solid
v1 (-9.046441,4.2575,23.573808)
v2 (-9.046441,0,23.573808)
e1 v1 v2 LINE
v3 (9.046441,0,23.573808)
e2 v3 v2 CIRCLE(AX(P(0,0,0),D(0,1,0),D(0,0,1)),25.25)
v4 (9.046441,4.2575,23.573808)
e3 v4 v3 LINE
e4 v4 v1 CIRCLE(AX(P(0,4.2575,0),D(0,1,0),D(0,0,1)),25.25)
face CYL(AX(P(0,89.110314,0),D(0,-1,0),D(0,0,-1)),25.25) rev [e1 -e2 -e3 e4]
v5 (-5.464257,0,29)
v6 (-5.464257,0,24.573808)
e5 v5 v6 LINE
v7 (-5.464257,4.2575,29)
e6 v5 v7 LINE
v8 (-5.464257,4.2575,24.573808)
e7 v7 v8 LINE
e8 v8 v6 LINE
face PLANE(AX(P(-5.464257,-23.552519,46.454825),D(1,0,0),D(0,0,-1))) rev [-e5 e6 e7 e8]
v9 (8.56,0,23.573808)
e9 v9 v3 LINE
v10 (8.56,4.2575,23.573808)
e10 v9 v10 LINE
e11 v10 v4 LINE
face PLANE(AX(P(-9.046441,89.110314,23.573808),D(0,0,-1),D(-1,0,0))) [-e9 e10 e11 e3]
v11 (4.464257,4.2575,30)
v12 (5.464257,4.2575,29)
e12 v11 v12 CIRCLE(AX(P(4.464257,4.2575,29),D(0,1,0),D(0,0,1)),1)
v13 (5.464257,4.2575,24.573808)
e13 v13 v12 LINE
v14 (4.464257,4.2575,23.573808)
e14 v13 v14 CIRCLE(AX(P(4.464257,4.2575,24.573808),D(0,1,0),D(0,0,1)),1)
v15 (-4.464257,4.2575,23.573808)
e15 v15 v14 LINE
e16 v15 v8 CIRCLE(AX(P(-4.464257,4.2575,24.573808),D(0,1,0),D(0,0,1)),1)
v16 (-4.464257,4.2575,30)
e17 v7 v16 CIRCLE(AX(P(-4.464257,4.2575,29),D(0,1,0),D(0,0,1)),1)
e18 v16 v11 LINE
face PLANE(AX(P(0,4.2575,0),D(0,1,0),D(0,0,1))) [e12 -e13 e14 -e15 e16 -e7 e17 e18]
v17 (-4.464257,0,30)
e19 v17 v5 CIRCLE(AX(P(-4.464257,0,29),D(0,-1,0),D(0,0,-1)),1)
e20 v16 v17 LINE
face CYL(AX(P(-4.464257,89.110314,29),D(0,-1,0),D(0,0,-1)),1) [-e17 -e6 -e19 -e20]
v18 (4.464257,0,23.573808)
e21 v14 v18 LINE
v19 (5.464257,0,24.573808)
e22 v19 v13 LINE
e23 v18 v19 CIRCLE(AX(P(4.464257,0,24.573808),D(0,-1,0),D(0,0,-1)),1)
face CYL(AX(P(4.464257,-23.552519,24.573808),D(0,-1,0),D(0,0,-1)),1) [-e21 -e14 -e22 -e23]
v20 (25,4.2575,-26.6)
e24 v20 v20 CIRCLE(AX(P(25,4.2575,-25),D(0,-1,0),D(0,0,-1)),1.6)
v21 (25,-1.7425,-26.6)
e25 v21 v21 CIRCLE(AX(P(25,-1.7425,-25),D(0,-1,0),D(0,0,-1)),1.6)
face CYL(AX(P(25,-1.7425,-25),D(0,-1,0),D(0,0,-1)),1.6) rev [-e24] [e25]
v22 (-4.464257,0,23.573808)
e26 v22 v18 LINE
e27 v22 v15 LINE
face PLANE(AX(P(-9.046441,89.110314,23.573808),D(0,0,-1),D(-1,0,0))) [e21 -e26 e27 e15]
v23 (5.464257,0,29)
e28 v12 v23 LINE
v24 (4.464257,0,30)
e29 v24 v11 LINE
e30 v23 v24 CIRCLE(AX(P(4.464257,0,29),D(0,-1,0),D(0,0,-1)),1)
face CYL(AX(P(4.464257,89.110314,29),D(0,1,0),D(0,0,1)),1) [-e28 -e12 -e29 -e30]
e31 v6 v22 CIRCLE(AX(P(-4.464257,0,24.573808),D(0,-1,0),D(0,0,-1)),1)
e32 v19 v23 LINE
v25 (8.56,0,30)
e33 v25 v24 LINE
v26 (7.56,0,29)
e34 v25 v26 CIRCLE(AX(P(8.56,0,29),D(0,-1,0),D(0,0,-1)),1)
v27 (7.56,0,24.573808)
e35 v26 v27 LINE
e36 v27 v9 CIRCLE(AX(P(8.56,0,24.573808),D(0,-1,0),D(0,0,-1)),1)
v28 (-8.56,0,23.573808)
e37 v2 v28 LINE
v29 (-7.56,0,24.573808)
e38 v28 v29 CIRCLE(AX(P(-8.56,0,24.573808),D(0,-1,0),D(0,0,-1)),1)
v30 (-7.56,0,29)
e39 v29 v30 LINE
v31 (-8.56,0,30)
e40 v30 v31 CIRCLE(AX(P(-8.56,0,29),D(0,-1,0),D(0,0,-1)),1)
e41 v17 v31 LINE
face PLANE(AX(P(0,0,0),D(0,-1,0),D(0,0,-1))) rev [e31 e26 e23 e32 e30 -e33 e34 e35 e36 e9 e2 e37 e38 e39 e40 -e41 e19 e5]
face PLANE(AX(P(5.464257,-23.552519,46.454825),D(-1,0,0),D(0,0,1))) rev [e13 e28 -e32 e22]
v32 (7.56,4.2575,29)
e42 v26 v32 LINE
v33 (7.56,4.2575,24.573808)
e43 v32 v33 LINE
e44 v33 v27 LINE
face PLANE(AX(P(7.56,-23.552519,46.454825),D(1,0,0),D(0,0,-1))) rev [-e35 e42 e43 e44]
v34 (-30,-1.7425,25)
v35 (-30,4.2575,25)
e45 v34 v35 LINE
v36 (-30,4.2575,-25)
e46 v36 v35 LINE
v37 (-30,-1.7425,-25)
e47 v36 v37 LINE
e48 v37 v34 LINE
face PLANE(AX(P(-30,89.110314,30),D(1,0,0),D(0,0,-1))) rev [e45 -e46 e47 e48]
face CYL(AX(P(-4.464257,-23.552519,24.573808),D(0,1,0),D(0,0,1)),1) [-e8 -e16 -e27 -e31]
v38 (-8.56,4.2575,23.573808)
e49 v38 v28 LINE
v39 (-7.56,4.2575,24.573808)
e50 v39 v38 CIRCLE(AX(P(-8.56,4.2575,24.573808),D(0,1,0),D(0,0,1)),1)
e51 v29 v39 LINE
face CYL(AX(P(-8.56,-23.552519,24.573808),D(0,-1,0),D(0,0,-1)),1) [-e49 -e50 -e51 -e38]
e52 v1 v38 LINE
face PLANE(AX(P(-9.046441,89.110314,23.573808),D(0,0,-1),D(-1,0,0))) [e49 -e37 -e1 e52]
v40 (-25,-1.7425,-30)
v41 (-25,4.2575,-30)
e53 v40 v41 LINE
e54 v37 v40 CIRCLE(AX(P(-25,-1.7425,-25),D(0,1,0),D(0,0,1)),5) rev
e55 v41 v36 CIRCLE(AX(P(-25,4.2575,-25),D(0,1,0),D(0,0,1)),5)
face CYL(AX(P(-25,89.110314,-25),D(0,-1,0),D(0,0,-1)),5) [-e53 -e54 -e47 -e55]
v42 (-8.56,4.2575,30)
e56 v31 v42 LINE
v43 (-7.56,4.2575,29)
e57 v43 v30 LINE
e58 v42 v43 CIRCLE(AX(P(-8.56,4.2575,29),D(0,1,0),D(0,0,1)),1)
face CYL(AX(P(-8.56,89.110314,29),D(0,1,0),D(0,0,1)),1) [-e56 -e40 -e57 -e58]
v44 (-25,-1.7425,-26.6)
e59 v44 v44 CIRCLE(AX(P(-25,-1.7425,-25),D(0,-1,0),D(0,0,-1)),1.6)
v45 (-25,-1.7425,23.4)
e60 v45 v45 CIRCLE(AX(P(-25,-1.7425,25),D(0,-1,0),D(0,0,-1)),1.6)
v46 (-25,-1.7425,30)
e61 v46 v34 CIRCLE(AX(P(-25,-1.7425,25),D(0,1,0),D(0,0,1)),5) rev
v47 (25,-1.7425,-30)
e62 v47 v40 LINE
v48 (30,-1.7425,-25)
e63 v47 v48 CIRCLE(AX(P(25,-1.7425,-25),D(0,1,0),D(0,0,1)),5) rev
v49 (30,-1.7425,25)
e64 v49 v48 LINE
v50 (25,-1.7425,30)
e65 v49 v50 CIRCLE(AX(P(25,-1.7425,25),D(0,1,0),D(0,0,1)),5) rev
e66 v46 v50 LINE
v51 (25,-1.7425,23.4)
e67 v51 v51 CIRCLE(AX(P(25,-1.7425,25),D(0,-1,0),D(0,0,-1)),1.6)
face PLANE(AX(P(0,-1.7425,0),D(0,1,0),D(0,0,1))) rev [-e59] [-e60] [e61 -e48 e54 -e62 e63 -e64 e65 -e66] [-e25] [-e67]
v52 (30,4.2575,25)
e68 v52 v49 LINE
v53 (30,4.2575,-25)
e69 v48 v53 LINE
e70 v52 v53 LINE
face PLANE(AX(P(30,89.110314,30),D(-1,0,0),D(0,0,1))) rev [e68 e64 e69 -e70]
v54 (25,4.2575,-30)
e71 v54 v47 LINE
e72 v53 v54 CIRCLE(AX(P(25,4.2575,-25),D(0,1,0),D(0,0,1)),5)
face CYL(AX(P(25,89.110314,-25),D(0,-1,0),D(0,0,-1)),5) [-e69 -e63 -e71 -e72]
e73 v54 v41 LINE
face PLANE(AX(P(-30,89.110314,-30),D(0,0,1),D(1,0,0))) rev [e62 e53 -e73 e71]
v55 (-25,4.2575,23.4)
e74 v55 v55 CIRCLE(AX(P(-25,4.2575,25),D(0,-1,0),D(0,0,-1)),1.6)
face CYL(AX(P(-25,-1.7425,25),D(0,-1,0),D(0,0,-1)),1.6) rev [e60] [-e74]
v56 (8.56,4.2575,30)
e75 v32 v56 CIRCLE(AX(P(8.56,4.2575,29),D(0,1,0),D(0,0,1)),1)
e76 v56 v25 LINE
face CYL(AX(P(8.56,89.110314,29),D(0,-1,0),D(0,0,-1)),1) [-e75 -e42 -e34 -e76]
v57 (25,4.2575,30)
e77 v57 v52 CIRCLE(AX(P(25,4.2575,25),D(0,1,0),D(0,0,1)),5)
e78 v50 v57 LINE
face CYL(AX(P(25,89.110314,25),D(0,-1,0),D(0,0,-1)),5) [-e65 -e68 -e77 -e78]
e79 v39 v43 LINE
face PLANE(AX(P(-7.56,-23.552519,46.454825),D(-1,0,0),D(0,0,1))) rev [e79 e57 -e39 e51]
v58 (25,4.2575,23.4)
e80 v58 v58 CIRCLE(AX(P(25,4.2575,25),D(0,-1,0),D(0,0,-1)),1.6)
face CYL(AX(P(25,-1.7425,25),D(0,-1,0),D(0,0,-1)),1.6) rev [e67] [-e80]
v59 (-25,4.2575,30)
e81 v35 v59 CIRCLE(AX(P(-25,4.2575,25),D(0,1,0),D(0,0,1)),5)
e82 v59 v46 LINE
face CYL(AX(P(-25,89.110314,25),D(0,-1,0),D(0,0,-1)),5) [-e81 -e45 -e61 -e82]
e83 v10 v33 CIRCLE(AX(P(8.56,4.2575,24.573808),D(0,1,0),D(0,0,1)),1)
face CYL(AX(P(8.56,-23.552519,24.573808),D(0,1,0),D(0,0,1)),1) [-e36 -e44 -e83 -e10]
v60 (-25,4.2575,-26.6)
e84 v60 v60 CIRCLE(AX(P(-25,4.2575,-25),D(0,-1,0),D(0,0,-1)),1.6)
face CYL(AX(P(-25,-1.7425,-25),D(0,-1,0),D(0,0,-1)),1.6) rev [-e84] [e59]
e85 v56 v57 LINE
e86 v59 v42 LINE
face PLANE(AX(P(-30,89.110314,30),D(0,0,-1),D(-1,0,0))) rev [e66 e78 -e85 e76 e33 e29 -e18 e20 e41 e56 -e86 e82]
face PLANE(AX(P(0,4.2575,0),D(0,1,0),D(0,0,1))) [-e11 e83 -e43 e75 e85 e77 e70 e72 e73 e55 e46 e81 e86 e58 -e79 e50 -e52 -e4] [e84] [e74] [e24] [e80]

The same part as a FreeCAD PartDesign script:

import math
import FreeCAD as App
import Part
import Sketcher

V = App.Vector
Q = App.Units.Quantity


def edges_at(feature, points):
    """Names of the edges that pass closest to the given points."""
    edges = feature.Shape.Edges
    near = lambda p: min(range(len(edges)), key=lambda i: edges[i].distToShape(Part.Vertex(*p))[0])
    return sorted({f"Edge{near(p) + 1}" for p in points})


def add_polygon(sketch, points):
    """Adds a closed chain of lines whose ends are joined by coincident constraints."""
    first, n = sketch.GeometryCount, len(points)
    for a, b in zip(points, points[1:] + points[:1]):
        sketch.addGeometry(Part.LineSegment(App.Vector(*a, 0), App.Vector(*b, 0)), False)
    for i in range(n):
        sketch.addConstraint(Sketcher.Constraint("Coincident", first + i, 2, first + (i + 1) % n, 1))

doc = App.newDocument("Part")
body = doc.addObject("PartDesign::Body", "Body")

# Sketch on XZ plane
sketch1 = body.newObject("Sketcher::SketchObject", "Sketch")
sketch1.AttachmentSupport = (doc.getObject("XZ_Plane"), [""])
sketch1.MapMode = "FlatFace"
add_polygon(sketch1, [(-30, -30), (-30, 30), (30, 30), (30, -30)])  # lines 0-3
sketch1.addGeometry(Part.LineSegment(V(9, 24, 0), V(-9, 24, 0)), False)  # 4
sketch1.addGeometry(Part.ArcOfCircle(Part.Circle(V(0, 0, 0), V(0, 0, 1), 25), math.radians(111), math.radians(182)), False)  # 5
sketch1.addGeometry(Part.ArcOfCircle(Part.Circle(V(0, 0, 0), V(0, 0, 1), 25), math.radians(-178), math.radians(69)), False)  # 6
sketch1.addConstraint([
    Sketcher.Constraint("Coincident", 4, 2, 5, 1),
    Sketcher.Constraint("Tangent", 5, 2, 6, 1),
    Sketcher.Constraint("Coincident", 6, 2, 4, 1),
    Sketcher.Constraint("Vertical", 0),
    Sketcher.Constraint("Horizontal", 1),
    Sketcher.Constraint("Vertical", 2),
    Sketcher.Constraint("Horizontal", 3),
    Sketcher.Constraint("Horizontal", 4),
    Sketcher.Constraint("Coincident", 5, 3, -1, 1),
    Sketcher.Constraint("Equal", 5, 6),
    Sketcher.Constraint("Symmetric", 0, 2, 2, 2, -1, 1),
    Sketcher.Constraint("Equal", 3, 0),
    Sketcher.Constraint("DistanceX", 1, 1, 1, 2, Q("60 mm")),
    Sketcher.Constraint("Radius", 5, Q("25.25 mm")),
    Sketcher.Constraint("DistanceY", 5, 2, -1, 1, Q("1.01 mm")),
    Sketcher.Constraint("DistanceX", 4, 2, 4, 1, Q("18.092882 mm")),
])
pad1 = body.newObject("PartDesign::Pad", "Pad")
pad1.Profile = sketch1
pad1.Length = 4.2575
pad1.Reversed = True

# Sketch on XZ plane
sketch2 = body.newObject("Sketcher::SketchObject", "Sketch001")
sketch2.AttachmentSupport = (doc.getObject("XZ_Plane"), [""])
sketch2.MapMode = "FlatFace"
add_polygon(sketch2, [(-30, 30), (-30, -30), (30, -30), (30, 30)])  # lines 0-3
sketch2.addConstraint([
    Sketcher.Constraint("Vertical", 0),
    Sketcher.Constraint("Horizontal", 1),
    Sketcher.Constraint("Vertical", 2),
    Sketcher.Constraint("Horizontal", 3),
    Sketcher.Constraint("Symmetric", 0, 2, 2, 2, -1, 1),
    Sketcher.Constraint("Equal", 3, 0),
    Sketcher.Constraint("DistanceX", 1, 1, 1, 2, Q("60 mm")),
])
pad2 = body.newObject("PartDesign::Pad", "Pad001")
pad2.Profile = sketch2
pad2.Length = 1.7425

# Sketch on XZ plane
sketch3 = body.newObject("Sketcher::SketchObject", "Sketch002")
sketch3.AttachmentSupport = (doc.getObject("XZ_Plane"), [""])
sketch3.MapMode = "FlatFace"
sketch3.AttachmentOffset = App.Placement(V(0, 0, -4.2575), App.Rotation())
add_polygon(sketch3, [(-7.6, 23), (-7.6, 46.5), (-5.5, 46.5), (-5.5, 23)])  # lines 0-3
add_polygon(sketch3, [(5.5, 23), (5.5, 46.5), (7.6, 46.5), (7.6, 23)])  # lines 4-7
sketch3.addConstraint([
    Sketcher.Constraint("Vertical", 0),
    Sketcher.Constraint("Horizontal", 1),
    Sketcher.Constraint("Vertical", 2),
    Sketcher.Constraint("Horizontal", 3),
    Sketcher.Constraint("Vertical", 4),
    Sketcher.Constraint("Horizontal", 5),
    Sketcher.Constraint("Vertical", 6),
    Sketcher.Constraint("Horizontal", 7),
    Sketcher.Constraint("Symmetric", 1, 2, 4, 2, -2),
    Sketcher.Constraint("Symmetric", 3, 2, 6, 2, -2),
    Sketcher.Constraint("DistanceX", 0, 2, -1, 1, Q("7.56 mm")),
    Sketcher.Constraint("DistanceX", 1, 1, 1, 2, Q("2.095743 mm")),
    Sketcher.Constraint("DistanceY", 0, 1, 0, 2, Q("23.459093 mm")),
    Sketcher.Constraint("DistanceY", -1, 1, 0, 2, Q("46.454825 mm")),
])
pocket1 = body.newObject("PartDesign::Pocket", "Pocket")
pocket1.Profile = sketch3
pocket1.Length = 4.2575
pocket1.Reversed = True
doc.recompute()

fillet = body.newObject("PartDesign::Fillet", "Fillet")
fillet.Base = (pocket1, edges_at(pocket1, [
    (-5.464, 2.129, 30),
    (-5.464, 2.129, 23.574),
    (-7.56, 2.129, 30),
    (-7.56, 2.129, 23.574),
    (5.464, 2.129, 30),
    (5.464, 2.129, 23.574),
    (7.56, 2.129, 30),
    (7.56, 2.129, 23.574),
]))
fillet.Radius = 1
doc.recompute()

fillet2 = body.newObject("PartDesign::Fillet", "Fillet001")
fillet2.Base = (fillet, edges_at(fillet, [
    (30, 1.258, 30),
    (-30, 1.258, 30),
    (-30, 1.258, -30),
    (30, 1.258, -30),
]))
fillet2.Radius = 5

# Sketch on XZ plane
sketch4 = body.newObject("Sketcher::SketchObject", "Sketch003")
sketch4.AttachmentSupport = (doc.getObject("XZ_Plane"), [""])
sketch4.MapMode = "FlatFace"
sketch4.AttachmentOffset = App.Placement(V(0, 0, 1.7425), App.Rotation())
sketch4.addGeometry([
    Part.Circle(V(25, -25, 0), V(0, 0, 1), 1.6),
    Part.Circle(V(-25, -25, 0), V(0, 0, 1), 1.6),
    Part.Circle(V(-25, 25, 0), V(0, 0, 1), 1.6),
    Part.Circle(V(25, 25, 0), V(0, 0, 1), 1.6),
], False)
sketch4.addConstraint([
    Sketcher.Constraint("Equal", 0, 1),
    Sketcher.Constraint("Equal", 1, 2),
    Sketcher.Constraint("Equal", 2, 3),
    Sketcher.Constraint("Symmetric", 0, 3, 2, 3, -1, 1),
    Sketcher.Constraint("Symmetric", 1, 3, 3, 3, -1, 1),
    Sketcher.Constraint("Symmetric", 0, 3, 1, 3, -2),
    Sketcher.Constraint("Diameter", 0, Q("3.2 mm")),
    Sketcher.Constraint("DistanceX", -1, 1, 0, 3, Q("25 mm")),
    Sketcher.Constraint("DistanceY", 0, 3, -1, 1, Q("25 mm")),
])
doc.recompute()
hole = body.newObject("PartDesign::Hole", "Hole")
hole.Profile = sketch4
hole.ThreadType = "None"
hole.Diameter = 3.2
hole.DepthType = "ThroughAll"

doc.recompute()
